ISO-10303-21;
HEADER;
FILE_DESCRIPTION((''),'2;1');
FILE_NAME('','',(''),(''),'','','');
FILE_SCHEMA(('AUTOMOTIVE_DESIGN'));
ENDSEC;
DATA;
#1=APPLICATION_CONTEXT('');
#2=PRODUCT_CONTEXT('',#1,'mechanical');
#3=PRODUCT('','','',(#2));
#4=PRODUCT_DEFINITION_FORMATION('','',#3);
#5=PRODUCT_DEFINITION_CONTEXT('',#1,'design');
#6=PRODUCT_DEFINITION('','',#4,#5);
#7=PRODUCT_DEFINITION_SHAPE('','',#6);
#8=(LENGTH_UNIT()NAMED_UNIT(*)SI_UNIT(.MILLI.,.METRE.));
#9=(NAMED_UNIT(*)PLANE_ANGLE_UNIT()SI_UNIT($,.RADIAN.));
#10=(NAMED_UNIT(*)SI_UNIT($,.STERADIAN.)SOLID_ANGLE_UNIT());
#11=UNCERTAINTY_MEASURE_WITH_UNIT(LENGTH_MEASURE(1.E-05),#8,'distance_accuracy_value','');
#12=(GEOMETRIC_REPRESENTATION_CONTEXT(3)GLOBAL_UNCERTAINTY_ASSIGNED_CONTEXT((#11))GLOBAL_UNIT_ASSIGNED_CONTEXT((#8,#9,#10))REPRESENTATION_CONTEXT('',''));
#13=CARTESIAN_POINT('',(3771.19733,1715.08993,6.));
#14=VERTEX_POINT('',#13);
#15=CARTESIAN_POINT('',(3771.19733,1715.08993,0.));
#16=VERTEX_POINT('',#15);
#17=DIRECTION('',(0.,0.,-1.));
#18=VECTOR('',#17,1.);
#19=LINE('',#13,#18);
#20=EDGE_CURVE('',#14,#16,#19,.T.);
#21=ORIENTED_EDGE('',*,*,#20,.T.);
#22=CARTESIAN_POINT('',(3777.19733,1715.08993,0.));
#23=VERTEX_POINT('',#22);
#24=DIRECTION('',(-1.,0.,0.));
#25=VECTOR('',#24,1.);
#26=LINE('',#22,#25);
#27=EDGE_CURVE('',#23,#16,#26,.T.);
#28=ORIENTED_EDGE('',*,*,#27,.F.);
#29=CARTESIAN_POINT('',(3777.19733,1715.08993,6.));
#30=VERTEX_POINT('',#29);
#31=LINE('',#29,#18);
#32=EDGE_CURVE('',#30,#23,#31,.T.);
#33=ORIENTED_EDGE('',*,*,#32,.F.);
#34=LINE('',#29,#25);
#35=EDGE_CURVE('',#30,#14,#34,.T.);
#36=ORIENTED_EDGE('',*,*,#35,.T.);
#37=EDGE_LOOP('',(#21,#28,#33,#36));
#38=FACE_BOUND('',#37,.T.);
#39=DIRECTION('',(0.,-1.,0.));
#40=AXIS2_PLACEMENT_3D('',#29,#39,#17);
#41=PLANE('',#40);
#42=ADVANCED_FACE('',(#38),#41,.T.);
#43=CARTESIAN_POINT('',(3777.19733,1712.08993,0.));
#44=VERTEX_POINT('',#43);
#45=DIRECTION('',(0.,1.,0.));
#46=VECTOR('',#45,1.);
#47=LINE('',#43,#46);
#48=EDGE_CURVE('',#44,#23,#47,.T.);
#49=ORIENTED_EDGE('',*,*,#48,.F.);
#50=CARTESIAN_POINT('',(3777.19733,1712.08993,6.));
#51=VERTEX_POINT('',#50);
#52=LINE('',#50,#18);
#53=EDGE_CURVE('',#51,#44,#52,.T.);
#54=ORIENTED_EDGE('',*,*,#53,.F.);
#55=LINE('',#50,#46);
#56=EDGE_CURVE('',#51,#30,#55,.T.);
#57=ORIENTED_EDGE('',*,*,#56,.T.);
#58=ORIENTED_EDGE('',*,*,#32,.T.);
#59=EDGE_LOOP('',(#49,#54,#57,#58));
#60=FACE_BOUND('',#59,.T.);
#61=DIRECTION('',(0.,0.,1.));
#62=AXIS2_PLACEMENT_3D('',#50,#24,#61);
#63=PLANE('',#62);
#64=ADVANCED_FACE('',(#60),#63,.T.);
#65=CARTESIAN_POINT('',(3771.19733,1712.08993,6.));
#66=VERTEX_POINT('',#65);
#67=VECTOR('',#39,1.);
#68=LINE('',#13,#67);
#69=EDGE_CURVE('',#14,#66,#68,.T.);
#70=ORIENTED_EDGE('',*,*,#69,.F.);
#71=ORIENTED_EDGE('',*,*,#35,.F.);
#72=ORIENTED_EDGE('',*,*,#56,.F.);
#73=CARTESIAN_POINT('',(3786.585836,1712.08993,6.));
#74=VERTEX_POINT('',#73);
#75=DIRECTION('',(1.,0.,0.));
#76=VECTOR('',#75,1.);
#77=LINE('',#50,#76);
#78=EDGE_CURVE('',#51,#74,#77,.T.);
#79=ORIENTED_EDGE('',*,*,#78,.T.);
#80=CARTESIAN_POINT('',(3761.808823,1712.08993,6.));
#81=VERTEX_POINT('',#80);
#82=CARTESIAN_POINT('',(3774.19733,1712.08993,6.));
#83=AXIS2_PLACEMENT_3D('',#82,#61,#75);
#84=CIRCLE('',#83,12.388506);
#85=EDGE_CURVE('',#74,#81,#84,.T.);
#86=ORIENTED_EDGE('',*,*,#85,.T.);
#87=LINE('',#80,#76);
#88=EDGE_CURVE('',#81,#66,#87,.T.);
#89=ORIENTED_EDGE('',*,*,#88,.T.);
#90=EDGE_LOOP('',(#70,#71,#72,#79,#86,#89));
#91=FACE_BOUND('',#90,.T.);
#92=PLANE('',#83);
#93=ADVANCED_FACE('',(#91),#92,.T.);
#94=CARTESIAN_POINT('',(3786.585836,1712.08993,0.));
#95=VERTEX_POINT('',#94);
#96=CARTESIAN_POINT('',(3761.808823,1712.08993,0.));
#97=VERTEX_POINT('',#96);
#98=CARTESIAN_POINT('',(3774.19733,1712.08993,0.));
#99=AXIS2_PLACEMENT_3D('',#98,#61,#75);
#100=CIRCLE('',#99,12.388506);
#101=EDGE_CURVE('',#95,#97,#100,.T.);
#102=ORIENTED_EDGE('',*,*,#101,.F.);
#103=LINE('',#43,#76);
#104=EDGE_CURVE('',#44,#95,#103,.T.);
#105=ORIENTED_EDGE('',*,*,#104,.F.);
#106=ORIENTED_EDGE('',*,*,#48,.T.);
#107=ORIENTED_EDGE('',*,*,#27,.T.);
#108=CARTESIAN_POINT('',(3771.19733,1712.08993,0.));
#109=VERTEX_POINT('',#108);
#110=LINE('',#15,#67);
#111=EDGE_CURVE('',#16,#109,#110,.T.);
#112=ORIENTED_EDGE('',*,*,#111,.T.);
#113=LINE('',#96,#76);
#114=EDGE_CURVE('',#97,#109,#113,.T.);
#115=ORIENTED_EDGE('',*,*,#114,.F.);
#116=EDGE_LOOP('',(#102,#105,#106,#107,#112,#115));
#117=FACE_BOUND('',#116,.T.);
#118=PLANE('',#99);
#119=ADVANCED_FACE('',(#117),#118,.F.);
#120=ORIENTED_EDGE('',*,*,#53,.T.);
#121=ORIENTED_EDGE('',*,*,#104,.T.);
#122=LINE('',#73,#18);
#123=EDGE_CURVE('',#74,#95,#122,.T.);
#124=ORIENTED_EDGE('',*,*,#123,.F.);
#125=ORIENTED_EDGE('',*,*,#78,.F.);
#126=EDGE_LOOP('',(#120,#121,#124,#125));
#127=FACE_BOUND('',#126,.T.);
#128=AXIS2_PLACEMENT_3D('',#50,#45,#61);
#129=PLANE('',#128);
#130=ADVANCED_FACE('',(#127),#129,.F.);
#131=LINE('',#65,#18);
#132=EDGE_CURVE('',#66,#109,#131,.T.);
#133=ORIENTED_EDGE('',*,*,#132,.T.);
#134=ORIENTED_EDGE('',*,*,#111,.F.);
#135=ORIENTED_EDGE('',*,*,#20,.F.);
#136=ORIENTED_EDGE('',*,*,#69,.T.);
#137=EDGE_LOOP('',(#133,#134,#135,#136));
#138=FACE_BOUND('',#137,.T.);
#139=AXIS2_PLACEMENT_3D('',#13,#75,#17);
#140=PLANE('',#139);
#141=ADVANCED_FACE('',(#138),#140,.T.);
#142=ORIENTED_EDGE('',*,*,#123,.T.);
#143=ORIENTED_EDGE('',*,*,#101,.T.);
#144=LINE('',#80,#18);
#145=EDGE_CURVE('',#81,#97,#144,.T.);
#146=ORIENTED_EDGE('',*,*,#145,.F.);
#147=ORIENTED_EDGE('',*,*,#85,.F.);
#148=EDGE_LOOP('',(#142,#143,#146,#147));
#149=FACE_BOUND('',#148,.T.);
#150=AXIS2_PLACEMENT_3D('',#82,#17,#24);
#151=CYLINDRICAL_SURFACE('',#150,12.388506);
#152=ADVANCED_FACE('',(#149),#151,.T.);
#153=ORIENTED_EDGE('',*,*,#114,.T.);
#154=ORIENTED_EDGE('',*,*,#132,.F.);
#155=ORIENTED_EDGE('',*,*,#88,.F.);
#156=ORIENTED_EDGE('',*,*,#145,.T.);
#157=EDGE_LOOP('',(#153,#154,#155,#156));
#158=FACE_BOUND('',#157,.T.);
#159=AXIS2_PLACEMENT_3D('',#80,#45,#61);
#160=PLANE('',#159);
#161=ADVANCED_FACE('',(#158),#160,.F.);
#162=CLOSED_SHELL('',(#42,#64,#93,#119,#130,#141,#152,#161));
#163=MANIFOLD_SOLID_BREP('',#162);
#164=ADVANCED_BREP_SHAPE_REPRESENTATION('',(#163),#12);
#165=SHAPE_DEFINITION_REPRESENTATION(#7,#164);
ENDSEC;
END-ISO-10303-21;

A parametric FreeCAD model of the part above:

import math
import FreeCAD as App
import Part
import Sketcher

V = App.Vector
Q = App.Units.Quantity

doc = App.newDocument("Part")
body = doc.addObject("PartDesign::Body", "Body")

sketch1 = doc.addObject("Sketcher::SketchObject", "Sketch")
body.addObject(sketch1)
sketch1.AttachmentSupport = (doc.XY_Plane, [""])
sketch1.MapMode = "FlatFace"
sketch1.addGeometry(Part.LineSegment(V(3761.808823, 1712.08993, 0), V(3771.19733, 1712.08993, 0)), False)
sketch1.addGeometry(Part.LineSegment(V(3771.19733, 1712.08993, 0), V(3771.19733, 1715.08993, 0)), False)
sketch1.addGeometry(Part.LineSegment(V(3771.19733, 1715.08993, 0), V(3777.19733, 1715.08993, 0)), False)
sketch1.addGeometry(Part.LineSegment(V(3777.19733, 1715.08993, 0), V(3777.19733, 1712.08993, 0)), False)
sketch1.addGeometry(Part.LineSegment(V(3777.19733, 1712.08993, 0), V(3786.585836, 1712.08993, 0)), False)
sketch1.addGeometry(Part.ArcOfCircle(Part.Circle(V(3774.19733, 1712.08993, 0), V(0, 0, 1), 12.388506), math.radians(0), math.radians(180)), False)
sketch1.addConstraint(Sketcher.Constraint("Coincident", 0, 2, 1, 1))
sketch1.addConstraint(Sketcher.Constraint("Coincident", 1, 2, 2, 1))
sketch1.addConstraint(Sketcher.Constraint("Coincident", 2, 2, 3, 1))
sketch1.addConstraint(Sketcher.Constraint("Coincident", 3, 2, 4, 1))
sketch1.addConstraint(Sketcher.Constraint("Coincident", 4, 2, 5, 1))
sketch1.addConstraint(Sketcher.Constraint("Coincident", 5, 2, 0, 1))
sketch1.addConstraint(Sketcher.Constraint("Horizontal", 0))
sketch1.addConstraint(Sketcher.Constraint("Vertical", 1))
sketch1.addConstraint(Sketcher.Constraint("Horizontal", 2))
sketch1.addConstraint(Sketcher.Constraint("Vertical", 3))
sketch1.addConstraint(Sketcher.Constraint("Horizontal", 4))
sketch1.addConstraint(Sketcher.Constraint("Horizontal", 5, 3, 0, 2))
sketch1.addConstraint(Sketcher.Constraint("Horizontal", 0, 2, 3, 2))
sketch1.addConstraint(Sketcher.Constraint("Equal", 0, 4))
sketch1.addConstraint(Sketcher.Constraint("DistanceX", 2, 1, 2, 2, Q("6 mm")))
sketch1.addConstraint(Sketcher.Constraint("DistanceY", 1, 1, 1, 2, Q("3 mm")))
sketch1.addConstraint(Sketcher.Constraint("Radius", 5, Q("12.388506 mm")))
sketch1.addConstraint(Sketcher.Constraint("DistanceX", -1, 1, 5, 3, Q("3774.19733 mm")))
sketch1.addConstraint(Sketcher.Constraint("DistanceY", -1, 1, 5, 3, Q("1712.08993 mm")))
pad1 = doc.addObject("PartDesign::Pad", "Pad")
body.addObject(pad1)
pad1.Profile = sketch1
pad1.Length = 6

doc.recompute()
